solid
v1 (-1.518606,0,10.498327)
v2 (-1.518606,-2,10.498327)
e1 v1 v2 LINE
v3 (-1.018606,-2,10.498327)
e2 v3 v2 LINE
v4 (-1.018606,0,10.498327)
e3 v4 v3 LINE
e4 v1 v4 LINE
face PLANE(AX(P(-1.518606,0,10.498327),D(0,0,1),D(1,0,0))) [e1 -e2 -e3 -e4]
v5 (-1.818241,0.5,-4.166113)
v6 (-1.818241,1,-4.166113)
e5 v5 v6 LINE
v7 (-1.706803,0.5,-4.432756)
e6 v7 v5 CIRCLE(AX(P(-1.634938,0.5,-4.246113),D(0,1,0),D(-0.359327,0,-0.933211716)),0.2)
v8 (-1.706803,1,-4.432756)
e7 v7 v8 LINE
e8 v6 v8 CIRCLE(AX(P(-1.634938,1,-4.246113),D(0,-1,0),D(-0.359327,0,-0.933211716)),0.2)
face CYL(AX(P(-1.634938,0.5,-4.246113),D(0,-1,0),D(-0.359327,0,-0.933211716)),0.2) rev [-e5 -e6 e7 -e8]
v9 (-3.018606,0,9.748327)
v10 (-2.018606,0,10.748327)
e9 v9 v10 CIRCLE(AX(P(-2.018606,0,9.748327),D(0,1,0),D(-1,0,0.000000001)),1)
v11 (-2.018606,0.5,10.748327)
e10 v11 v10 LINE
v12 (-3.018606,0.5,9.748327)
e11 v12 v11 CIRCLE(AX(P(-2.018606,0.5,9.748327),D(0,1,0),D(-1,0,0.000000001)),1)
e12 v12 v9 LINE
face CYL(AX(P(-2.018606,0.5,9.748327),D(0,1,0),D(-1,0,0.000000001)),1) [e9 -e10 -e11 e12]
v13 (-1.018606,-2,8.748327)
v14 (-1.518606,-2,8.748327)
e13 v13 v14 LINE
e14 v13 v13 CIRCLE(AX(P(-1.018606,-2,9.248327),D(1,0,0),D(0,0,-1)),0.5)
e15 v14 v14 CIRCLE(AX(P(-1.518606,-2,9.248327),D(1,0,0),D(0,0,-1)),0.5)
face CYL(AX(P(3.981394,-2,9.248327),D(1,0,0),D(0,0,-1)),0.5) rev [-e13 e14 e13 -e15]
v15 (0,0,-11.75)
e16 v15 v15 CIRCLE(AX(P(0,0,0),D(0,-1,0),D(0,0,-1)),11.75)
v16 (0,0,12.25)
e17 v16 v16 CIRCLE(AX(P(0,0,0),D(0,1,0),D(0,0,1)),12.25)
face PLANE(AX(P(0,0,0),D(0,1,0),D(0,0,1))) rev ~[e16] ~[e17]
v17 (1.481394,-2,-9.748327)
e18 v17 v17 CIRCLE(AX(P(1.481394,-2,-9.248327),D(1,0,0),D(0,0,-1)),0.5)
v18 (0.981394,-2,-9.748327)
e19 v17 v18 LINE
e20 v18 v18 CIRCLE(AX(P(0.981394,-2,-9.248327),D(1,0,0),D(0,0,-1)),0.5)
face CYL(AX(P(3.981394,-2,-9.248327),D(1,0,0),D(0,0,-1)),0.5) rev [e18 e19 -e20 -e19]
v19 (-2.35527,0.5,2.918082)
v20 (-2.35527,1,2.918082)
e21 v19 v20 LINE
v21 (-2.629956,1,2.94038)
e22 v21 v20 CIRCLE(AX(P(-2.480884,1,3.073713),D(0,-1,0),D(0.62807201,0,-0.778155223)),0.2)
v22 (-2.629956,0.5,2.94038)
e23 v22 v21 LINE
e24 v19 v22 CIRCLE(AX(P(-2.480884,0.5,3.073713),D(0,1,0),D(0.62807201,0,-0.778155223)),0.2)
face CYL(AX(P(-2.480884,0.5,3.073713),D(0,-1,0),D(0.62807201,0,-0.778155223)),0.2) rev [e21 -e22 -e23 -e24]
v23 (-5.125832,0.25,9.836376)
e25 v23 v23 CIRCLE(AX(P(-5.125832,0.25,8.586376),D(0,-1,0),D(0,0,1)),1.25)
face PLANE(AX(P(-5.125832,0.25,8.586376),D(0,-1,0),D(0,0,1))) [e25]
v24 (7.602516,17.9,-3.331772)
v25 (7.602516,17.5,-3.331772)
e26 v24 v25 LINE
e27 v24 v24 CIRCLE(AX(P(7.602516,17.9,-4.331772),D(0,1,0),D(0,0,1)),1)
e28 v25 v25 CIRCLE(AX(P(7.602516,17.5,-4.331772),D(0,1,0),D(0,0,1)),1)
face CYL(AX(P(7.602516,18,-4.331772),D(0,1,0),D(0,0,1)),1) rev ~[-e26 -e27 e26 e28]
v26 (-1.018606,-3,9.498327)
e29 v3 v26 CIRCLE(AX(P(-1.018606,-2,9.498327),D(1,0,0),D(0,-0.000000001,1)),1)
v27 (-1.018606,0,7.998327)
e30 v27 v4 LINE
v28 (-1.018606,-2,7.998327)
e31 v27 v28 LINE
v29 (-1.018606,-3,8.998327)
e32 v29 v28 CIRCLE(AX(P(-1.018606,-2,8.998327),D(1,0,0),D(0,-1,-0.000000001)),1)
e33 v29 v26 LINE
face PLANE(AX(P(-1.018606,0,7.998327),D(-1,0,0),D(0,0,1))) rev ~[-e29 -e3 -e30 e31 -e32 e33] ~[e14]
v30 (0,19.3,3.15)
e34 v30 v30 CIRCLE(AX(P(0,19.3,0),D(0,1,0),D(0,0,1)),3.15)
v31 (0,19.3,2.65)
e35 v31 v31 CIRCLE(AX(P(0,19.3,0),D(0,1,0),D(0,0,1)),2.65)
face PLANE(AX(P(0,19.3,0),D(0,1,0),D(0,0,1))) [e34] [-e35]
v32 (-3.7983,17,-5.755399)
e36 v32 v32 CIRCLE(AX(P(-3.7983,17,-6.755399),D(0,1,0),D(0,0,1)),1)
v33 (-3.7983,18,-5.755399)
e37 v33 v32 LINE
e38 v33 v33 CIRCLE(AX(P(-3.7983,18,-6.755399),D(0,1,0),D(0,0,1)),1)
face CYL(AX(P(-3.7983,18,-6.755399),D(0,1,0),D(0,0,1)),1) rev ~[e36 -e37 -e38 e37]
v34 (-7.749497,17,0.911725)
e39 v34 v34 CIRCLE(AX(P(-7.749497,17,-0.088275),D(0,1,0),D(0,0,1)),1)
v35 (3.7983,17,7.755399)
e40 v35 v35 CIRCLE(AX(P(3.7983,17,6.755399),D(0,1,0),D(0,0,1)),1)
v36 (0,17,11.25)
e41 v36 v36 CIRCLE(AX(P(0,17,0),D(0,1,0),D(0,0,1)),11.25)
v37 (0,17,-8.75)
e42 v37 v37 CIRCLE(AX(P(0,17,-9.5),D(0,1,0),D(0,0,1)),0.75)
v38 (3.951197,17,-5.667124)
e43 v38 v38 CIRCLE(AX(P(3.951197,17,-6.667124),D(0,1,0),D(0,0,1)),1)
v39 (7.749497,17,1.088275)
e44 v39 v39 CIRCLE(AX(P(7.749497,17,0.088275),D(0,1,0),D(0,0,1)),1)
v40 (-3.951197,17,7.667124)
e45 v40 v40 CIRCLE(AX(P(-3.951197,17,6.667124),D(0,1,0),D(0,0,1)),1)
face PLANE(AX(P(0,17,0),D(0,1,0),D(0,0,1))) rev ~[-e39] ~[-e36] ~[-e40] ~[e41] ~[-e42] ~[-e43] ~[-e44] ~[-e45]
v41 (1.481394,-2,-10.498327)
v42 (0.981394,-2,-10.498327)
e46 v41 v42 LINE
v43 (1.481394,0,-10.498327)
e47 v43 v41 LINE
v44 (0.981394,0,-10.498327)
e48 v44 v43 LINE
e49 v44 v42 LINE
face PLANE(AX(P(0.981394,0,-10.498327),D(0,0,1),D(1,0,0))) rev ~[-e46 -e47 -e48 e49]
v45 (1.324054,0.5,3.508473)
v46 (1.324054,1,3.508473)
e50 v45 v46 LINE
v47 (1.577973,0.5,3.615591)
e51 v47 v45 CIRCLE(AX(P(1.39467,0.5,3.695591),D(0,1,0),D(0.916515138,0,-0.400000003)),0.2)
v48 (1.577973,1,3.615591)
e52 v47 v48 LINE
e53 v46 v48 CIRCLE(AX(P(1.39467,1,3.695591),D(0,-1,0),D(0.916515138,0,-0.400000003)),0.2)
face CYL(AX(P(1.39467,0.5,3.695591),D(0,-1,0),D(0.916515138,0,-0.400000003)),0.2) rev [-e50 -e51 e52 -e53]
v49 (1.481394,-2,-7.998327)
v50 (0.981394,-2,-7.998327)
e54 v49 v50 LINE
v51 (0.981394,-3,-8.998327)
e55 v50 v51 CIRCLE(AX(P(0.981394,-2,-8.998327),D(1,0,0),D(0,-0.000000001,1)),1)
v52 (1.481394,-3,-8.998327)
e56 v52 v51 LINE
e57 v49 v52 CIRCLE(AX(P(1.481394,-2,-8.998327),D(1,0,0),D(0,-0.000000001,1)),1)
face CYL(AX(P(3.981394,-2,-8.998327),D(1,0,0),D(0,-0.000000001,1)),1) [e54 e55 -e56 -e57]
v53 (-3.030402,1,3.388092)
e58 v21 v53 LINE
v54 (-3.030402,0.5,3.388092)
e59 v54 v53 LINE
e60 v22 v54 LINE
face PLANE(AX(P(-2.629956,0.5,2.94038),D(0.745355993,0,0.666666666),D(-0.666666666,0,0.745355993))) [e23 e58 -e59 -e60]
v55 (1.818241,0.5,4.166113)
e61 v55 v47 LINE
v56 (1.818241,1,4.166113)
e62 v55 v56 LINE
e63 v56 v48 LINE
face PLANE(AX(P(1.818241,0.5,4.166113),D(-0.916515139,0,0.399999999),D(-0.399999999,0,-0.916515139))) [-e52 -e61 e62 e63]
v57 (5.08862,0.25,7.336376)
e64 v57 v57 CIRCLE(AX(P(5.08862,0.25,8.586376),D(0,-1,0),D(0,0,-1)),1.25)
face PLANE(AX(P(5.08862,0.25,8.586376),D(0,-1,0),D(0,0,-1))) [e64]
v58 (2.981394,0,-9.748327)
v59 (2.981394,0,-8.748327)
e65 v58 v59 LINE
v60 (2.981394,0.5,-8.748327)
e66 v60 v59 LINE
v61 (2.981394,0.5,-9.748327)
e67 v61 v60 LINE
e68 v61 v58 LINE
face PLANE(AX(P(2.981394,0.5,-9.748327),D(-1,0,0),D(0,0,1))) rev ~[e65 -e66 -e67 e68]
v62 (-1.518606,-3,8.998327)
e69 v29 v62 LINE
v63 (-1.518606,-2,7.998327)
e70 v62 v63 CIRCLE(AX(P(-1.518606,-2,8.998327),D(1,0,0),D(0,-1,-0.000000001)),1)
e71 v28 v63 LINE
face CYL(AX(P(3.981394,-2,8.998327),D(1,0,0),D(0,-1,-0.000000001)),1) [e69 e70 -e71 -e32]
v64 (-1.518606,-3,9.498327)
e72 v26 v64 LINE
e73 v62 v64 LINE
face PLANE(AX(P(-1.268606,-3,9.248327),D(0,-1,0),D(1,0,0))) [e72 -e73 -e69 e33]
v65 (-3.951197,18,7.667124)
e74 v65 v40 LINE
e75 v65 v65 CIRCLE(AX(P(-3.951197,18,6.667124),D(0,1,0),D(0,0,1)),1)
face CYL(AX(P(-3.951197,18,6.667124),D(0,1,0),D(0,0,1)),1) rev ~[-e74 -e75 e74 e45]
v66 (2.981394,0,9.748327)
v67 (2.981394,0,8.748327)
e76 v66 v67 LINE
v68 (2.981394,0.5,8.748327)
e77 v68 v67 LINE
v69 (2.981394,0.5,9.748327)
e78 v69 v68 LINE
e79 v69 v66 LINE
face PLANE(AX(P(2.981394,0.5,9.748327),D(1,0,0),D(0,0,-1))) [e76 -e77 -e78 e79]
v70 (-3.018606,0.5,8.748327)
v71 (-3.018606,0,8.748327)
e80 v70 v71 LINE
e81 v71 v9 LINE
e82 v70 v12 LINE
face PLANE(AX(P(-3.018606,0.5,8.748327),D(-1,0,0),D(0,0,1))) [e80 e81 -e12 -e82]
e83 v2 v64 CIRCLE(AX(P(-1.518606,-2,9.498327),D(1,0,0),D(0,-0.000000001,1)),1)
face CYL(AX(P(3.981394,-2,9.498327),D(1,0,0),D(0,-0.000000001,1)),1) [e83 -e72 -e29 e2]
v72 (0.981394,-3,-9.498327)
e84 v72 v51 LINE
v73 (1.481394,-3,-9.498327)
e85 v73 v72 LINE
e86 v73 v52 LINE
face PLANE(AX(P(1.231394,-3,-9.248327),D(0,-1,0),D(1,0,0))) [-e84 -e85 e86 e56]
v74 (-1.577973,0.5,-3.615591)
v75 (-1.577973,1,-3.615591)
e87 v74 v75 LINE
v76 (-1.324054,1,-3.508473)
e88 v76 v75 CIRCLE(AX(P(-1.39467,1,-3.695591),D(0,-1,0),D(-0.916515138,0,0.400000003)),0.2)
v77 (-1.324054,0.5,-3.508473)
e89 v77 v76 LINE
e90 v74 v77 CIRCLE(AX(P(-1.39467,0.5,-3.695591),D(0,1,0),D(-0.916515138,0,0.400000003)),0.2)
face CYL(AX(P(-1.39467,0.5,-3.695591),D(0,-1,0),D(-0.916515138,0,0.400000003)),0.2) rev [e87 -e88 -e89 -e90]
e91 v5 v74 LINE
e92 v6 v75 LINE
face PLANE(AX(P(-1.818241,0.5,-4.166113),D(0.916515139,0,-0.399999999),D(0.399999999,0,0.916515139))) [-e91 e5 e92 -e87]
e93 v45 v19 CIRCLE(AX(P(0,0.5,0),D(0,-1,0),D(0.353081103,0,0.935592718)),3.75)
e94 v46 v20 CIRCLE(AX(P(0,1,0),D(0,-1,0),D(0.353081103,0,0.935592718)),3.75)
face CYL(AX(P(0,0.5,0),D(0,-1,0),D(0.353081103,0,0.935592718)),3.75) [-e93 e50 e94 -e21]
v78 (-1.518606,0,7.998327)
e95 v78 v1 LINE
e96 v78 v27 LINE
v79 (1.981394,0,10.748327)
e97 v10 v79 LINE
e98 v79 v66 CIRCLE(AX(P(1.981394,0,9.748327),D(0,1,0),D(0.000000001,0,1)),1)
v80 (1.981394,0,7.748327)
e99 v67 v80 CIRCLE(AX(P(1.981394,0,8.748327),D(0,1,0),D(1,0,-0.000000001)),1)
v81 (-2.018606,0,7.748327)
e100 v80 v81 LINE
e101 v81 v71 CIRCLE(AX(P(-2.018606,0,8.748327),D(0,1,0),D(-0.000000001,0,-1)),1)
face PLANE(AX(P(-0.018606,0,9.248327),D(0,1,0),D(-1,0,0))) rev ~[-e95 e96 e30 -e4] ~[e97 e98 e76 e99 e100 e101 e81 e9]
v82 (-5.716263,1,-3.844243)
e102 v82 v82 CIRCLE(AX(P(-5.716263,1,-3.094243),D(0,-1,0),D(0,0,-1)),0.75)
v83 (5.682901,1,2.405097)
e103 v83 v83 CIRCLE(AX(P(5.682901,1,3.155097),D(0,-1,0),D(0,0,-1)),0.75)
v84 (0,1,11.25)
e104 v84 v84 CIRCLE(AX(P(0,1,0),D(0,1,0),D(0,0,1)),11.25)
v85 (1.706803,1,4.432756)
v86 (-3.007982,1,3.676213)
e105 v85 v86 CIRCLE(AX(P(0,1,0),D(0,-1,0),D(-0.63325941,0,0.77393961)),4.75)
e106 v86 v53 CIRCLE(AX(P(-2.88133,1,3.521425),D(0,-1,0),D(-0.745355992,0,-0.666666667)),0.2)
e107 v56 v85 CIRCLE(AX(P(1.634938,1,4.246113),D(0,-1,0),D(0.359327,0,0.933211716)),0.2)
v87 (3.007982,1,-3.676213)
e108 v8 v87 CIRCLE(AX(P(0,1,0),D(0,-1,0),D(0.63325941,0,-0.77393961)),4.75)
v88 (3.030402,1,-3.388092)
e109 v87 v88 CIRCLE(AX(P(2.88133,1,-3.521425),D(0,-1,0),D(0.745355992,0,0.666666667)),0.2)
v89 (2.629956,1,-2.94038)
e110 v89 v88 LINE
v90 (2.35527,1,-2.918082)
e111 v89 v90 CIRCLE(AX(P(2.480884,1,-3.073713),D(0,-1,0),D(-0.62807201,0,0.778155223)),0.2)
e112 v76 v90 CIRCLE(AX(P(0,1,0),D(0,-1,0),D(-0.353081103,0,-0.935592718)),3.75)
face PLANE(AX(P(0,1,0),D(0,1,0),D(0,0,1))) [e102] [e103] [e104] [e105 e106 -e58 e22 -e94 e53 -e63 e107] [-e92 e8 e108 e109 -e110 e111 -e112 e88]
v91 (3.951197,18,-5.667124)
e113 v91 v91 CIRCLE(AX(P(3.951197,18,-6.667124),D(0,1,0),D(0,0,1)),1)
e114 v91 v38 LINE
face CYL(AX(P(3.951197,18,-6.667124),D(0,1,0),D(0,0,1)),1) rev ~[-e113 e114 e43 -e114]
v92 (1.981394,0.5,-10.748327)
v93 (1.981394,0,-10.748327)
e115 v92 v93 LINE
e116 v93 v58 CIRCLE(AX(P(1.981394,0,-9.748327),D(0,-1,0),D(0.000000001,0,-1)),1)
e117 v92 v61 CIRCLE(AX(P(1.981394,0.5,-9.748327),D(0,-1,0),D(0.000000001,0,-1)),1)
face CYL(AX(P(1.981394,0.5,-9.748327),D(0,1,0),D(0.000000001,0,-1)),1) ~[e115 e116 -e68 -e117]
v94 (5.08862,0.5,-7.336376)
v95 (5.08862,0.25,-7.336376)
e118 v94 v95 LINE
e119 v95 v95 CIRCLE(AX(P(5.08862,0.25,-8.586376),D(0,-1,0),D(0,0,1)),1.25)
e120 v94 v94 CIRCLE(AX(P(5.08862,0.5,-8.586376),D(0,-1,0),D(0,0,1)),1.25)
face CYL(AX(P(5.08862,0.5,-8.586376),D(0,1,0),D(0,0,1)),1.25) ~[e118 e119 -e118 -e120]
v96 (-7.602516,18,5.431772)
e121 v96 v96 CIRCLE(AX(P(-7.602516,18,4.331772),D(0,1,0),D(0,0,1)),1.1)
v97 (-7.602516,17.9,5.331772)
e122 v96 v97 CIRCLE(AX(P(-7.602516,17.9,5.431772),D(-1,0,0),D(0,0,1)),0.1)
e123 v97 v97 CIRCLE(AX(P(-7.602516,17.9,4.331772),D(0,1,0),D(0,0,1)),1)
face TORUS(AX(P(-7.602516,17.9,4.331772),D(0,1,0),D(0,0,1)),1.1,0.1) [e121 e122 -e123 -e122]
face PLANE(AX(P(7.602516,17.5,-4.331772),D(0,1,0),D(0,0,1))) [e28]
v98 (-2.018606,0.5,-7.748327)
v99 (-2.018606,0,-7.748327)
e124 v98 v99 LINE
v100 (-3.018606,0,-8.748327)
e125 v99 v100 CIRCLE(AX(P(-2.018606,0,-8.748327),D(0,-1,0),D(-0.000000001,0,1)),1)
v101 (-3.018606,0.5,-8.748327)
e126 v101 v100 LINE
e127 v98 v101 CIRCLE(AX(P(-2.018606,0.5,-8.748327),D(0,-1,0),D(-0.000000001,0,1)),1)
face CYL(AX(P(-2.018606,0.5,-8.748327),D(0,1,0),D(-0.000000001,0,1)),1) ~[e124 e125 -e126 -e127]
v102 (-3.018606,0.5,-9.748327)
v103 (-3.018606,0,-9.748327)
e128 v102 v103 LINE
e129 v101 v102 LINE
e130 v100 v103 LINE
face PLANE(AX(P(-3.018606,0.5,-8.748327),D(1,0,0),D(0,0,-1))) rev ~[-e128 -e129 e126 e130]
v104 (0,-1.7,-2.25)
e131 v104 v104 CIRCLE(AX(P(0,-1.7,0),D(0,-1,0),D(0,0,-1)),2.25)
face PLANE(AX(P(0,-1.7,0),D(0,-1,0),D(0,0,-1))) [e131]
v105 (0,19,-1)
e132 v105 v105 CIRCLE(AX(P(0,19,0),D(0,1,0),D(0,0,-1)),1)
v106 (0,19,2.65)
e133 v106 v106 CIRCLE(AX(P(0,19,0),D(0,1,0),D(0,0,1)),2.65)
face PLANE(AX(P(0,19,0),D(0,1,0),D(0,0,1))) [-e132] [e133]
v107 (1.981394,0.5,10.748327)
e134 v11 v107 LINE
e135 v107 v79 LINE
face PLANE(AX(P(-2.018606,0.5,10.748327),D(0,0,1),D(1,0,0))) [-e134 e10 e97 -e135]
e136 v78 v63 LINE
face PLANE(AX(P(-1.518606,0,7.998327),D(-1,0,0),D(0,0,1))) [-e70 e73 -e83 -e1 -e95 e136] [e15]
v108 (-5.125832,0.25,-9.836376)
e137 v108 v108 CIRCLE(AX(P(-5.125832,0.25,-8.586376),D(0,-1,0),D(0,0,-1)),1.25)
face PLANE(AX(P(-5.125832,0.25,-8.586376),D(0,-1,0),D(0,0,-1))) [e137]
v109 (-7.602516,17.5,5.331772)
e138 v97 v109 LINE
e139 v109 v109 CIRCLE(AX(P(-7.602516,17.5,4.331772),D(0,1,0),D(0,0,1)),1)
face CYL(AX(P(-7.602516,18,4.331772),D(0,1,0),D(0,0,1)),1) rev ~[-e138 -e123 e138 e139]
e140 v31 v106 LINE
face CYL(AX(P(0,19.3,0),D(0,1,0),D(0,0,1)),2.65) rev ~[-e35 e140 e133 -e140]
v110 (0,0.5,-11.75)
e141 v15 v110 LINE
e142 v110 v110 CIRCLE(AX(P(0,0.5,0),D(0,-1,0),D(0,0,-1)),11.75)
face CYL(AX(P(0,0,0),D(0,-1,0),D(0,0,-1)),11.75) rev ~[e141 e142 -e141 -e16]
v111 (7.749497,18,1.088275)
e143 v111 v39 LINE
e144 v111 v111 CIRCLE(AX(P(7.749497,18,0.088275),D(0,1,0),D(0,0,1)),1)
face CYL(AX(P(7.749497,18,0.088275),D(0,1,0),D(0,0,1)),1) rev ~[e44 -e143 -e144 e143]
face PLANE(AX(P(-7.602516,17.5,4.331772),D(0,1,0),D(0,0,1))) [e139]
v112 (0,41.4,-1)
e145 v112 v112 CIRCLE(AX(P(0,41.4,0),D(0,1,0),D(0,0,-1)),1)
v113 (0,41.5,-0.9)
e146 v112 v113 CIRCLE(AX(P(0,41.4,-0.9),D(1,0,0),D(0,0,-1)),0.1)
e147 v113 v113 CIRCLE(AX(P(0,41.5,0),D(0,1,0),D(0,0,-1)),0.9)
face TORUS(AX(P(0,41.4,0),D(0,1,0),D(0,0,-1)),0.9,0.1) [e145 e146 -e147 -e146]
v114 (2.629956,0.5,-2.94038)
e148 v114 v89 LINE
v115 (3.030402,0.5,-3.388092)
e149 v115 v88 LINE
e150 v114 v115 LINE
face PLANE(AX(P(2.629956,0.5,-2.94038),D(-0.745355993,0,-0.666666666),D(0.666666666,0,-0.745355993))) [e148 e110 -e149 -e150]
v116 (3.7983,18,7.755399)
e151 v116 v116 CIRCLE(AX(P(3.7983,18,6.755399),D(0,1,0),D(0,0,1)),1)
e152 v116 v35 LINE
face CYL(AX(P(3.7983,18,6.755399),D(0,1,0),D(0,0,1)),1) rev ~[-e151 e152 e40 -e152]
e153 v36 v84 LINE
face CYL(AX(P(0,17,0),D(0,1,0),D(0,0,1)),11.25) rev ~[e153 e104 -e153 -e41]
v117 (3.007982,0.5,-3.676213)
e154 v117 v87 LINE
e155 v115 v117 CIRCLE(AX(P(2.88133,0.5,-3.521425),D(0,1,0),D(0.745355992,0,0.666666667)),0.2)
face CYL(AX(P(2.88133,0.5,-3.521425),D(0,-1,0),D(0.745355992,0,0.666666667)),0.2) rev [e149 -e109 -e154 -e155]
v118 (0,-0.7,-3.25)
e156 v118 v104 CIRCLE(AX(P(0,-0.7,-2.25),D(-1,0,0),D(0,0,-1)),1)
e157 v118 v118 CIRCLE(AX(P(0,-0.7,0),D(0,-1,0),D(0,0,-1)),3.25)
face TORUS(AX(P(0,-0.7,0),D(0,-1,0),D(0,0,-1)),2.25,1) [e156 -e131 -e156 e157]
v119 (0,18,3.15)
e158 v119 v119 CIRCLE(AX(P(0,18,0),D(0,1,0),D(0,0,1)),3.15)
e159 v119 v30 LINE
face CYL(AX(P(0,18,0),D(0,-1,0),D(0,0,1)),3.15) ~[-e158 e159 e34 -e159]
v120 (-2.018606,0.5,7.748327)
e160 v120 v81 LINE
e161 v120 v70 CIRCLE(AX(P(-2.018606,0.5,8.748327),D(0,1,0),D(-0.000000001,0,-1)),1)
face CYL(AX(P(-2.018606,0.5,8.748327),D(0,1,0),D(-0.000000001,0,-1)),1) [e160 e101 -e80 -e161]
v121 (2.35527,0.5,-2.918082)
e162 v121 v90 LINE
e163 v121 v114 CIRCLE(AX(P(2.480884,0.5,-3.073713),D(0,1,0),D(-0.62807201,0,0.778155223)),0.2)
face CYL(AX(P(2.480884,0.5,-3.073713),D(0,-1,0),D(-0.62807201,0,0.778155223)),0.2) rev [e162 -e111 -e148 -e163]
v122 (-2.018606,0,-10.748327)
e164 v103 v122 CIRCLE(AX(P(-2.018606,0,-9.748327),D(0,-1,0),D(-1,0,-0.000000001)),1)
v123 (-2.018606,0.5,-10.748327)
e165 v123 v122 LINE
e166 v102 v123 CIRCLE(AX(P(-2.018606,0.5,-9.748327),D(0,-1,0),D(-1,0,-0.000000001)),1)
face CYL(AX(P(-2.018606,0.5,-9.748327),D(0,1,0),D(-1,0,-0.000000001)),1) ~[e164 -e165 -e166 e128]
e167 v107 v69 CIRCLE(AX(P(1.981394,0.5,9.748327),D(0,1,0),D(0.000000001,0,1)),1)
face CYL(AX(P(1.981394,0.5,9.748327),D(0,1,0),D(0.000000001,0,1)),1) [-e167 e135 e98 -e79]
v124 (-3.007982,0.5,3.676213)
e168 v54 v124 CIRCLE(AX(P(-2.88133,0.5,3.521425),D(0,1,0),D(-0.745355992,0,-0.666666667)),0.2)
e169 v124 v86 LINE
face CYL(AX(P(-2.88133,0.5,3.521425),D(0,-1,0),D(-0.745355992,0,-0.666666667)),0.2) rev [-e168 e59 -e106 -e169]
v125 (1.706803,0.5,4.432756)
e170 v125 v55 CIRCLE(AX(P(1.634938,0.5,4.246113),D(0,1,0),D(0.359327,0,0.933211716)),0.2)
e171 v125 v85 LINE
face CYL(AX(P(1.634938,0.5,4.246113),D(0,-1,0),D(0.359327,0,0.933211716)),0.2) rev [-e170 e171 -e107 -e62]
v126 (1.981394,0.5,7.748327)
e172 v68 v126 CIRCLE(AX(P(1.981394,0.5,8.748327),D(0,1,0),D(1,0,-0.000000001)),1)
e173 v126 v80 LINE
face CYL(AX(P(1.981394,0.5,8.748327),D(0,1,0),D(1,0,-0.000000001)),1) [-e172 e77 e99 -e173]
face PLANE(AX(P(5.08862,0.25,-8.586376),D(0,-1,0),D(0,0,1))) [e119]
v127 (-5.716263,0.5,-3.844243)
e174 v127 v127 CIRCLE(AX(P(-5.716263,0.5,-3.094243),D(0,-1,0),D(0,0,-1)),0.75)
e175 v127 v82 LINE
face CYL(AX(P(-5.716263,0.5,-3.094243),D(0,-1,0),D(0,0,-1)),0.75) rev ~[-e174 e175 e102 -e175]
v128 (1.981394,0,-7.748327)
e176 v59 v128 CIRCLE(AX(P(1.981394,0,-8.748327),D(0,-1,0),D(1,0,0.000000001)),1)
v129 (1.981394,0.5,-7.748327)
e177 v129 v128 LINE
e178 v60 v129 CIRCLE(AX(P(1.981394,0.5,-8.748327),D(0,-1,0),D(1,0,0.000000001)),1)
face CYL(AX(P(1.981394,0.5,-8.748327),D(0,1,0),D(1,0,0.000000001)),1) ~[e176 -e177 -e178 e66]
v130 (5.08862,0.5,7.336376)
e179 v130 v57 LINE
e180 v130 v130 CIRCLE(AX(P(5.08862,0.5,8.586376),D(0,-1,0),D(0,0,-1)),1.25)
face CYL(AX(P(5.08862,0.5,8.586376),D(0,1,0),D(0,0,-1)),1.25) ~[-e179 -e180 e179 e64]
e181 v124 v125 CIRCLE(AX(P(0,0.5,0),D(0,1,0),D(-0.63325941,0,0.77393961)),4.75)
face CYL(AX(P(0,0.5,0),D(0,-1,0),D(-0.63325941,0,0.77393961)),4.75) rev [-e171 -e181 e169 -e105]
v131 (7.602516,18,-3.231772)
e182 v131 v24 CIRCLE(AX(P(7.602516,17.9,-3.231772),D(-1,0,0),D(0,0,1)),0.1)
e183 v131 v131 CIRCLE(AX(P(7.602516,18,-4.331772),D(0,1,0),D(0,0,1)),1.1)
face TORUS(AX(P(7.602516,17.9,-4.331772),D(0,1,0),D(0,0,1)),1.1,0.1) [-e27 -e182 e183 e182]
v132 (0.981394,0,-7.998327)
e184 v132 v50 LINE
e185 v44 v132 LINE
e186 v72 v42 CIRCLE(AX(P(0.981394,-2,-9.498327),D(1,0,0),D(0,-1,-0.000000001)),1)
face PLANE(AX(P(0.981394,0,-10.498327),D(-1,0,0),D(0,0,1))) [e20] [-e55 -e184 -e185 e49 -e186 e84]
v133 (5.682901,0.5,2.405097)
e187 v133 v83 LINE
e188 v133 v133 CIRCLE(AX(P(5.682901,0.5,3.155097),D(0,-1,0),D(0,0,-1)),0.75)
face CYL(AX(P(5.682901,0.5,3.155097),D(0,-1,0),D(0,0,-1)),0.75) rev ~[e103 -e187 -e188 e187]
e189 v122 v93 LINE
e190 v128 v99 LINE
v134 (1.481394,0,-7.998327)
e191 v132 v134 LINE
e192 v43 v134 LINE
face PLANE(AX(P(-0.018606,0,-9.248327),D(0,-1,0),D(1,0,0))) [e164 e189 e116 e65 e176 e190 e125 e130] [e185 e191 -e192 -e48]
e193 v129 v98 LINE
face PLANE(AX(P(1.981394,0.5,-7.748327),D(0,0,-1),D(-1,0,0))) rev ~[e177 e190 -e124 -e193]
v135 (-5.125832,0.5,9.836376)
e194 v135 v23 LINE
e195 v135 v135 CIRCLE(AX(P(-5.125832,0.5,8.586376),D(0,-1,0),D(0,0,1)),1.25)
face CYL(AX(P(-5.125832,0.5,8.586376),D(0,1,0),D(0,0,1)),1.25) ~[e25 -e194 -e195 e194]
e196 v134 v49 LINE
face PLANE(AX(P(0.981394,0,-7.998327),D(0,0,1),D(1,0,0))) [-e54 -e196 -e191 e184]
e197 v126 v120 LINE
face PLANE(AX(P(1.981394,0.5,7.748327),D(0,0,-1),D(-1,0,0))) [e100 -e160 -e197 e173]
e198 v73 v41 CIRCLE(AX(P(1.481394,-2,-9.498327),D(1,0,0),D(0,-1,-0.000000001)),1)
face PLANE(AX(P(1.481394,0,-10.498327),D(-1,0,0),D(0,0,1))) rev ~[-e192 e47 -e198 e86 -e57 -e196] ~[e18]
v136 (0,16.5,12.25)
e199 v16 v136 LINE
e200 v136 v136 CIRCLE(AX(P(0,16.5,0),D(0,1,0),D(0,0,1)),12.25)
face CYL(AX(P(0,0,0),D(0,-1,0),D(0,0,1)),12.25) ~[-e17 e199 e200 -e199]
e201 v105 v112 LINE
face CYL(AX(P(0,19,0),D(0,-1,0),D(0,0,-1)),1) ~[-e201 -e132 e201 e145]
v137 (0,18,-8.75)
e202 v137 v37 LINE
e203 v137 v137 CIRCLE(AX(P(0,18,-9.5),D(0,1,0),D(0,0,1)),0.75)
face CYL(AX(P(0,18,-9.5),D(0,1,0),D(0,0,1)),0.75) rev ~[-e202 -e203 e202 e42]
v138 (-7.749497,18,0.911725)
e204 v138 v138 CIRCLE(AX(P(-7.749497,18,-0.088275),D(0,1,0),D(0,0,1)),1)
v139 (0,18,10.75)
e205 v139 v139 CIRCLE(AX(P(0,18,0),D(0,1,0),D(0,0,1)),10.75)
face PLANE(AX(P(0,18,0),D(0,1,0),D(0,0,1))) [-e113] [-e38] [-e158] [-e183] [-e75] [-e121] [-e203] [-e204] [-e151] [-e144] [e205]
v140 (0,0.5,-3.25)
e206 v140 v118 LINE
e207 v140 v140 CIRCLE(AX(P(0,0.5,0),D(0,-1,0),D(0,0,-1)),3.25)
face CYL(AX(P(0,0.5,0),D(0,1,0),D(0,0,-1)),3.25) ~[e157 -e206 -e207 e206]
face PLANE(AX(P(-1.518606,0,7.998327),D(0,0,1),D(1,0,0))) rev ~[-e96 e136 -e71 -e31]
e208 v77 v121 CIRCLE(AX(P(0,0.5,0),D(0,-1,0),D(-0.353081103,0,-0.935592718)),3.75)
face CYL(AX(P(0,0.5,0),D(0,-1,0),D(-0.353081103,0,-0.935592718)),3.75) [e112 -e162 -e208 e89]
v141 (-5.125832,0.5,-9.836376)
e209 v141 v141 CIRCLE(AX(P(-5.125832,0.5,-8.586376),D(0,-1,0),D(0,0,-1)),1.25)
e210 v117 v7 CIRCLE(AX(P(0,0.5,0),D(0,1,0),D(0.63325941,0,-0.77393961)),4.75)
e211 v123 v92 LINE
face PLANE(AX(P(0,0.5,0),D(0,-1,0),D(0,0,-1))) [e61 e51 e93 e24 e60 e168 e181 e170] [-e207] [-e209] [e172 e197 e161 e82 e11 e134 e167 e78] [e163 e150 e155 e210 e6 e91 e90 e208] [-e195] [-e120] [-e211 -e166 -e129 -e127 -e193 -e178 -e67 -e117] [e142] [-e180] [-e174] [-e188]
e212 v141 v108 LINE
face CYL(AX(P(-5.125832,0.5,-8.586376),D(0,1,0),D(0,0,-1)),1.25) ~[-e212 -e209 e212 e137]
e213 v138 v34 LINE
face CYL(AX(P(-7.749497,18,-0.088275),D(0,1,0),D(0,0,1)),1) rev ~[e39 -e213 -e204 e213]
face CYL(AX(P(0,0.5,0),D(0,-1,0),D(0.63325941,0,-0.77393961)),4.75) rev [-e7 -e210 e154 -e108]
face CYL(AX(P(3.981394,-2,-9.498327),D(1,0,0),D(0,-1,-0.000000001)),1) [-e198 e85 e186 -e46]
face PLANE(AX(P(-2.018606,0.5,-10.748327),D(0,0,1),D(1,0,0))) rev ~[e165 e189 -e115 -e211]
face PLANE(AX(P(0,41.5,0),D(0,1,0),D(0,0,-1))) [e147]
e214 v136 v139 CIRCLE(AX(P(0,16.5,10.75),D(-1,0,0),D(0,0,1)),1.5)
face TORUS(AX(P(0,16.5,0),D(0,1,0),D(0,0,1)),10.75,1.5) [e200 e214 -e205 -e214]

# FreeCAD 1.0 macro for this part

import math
import FreeCAD as App
import Part
import Sketcher

V = App.Vector
Q = App.Units.Quantity


def edges_at(feature, points):
    """Names of the edges that pass closest to the given points."""
    edges = feature.Shape.Edges
    near = lambda p: min(range(len(edges)), key=lambda i: edges[i].distToShape(Part.Vertex(*p))[0])
    return sorted({f"Edge{near(p) + 1}" for p in points})


def add_polygon(sketch, points):
    """Adds a closed chain of lines whose ends are joined by coincident constraints."""
    first, n = sketch.GeometryCount, len(points)
    for a, b in zip(points, points[1:] + points[:1]):
        sketch.addGeometry(Part.LineSegment(App.Vector(*a, 0), App.Vector(*b, 0)), False)
    for i in range(n):
        sketch.addConstraint(Sketcher.Constraint("Coincident", first + i, 2, first + (i + 1) % n, 1))

doc = App.newDocument("Part")
params = doc.addObject("Spreadsheet::Sheet", "Params")
for row, (alias, value) in enumerate([
    ("sketch1_diameter", "24.5 mm"),
    ("pad1_length", "18 mm"),
    ("sketch2_diameter", "6.3 mm"),
    ("pad2_length", "1.3 mm"),
    ("sketch3_diameter", "5.3 mm"),
    ("pocket1_length", "0.3 mm"),
    ("sketch4_diameter", "2 mm"),
    ("pad3_length", "22.5 mm"),
    ("sketch5_diameter", "23.5 mm"),
    ("pocket2_length", "0.5 mm"),
    ("sketch6_diameter", "6.5 mm"),
    ("pad4_length", "2.2 mm"),
    ("sketch7_radius", "1 mm"),
    ("sketch7_diameter", "2.5 mm"),
    ("sketch7_width", "4 mm"),
    ("sketch7_height", "1 mm"),
    ("pad5_length", "0.5 mm"),
    ("sketch8_diameter", "2.5 mm"),
    ("pocket3_length", "0.25 mm"),
    ("sketch9_diameter", "1.5 mm"),
    ("sketch9_radius", "0.2 mm"),
    ("sketch9_radius2", "3.75 mm"),
    ("sketch9_radius3", "4.75 mm"),
    ("sketch9_height", "0.08 mm"),
    ("pocket4_length", "5 mm"),
    ("sketch10_diameter", "22.5 mm"),
    ("pocket5_length", "16 mm"),
    ("sketch11_width", "0.5 mm"),
    ("sketch11_height", "2.5 mm"),
    ("pad6_length", "3 mm"),
    ("sketch12_diameter", "1 mm"),
    ("sketch12_radius", "1 mm"),
    ("fillet_radius", "1.5 mm"),
    ("fillet2_radius", "1 mm"),
    ("sketch13_diameter", "2 mm"),
    ("sketch13_diameter2", "1.5 mm"),
    ("pocket7_length", "3 mm"),
    ("sketch14_diameter", "2 mm"),
    ("pocket8_length", "0.5 mm"),
    ("fillet3_radius", "0.1 mm"),
    ("fillet4_radius", "0.1 mm"),
], start=1):
    params.set(f"A{row}", alias)
    params.set(f"B{row}", "=" + value)
    params.setAlias(f"B{row}", alias)

body = doc.addObject("PartDesign::Body", "Body")

sketch1 = body.newObject("Sketcher::SketchObject", "Sketch")
sketch1.AttachmentSupport = (doc.getObject("XZ_Plane"), [""])
sketch1.MapMode = "FlatFace"
sketch1.addGeometry(Part.Circle(V(0, 0, 0), V(0, 0, 1), 12.25), False)
sketch1.addConstraint([
    Sketcher.Constraint("Coincident", 0, 3, -1, 1),
    Sketcher.Constraint("Diameter", 0, Q("24.5 mm")),
])
sketch1.setExpression("Constraints[1]", "Params.sketch1_diameter")
pad1 = body.newObject("PartDesign::Pad", "Pad")
pad1.Profile = sketch1
pad1.setExpression("Length", "Params.pad1_length")
pad1.Reversed = True

sketch2 = body.newObject("Sketcher::SketchObject", "Sketch001")
sketch2.AttachmentSupport = (doc.getObject("XZ_Plane"), [""])
sketch2.MapMode = "FlatFace"
sketch2.AttachmentOffset = App.Placement(V(0, 0, -18), App.Rotation())
sketch2.addGeometry(Part.Circle(V(0, 0, 0), V(0, 0, 1), 3.15), False)
sketch2.addConstraint([
    Sketcher.Constraint("Coincident", 0, 3, -1, 1),
    Sketcher.Constraint("Diameter", 0, Q("6.3 mm")),
])
sketch2.setExpression("Constraints[1]", "Params.sketch2_diameter")
pad2 = body.newObject("PartDesign::Pad", "Pad001")
pad2.Profile = sketch2
pad2.setExpression("Length", "Params.pad2_length")
pad2.Reversed = True

sketch3 = body.newObject("Sketcher::SketchObject", "Sketch002")
sketch3.AttachmentSupport = (doc.getObject("XZ_Plane"), [""])
sketch3.MapMode = "FlatFace"
sketch3.AttachmentOffset = App.Placement(V(0, 0, -19.3), App.Rotation())
sketch3.addGeometry(Part.Circle(V(0, 0, 0), V(0, 0, 1), 2.65), False)
sketch3.addConstraint([
    Sketcher.Constraint("Coincident", 0, 3, -1, 1),
    Sketcher.Constraint("Diameter", 0, Q("5.3 mm")),
])
sketch3.setExpression("Constraints[1]", "Params.sketch3_diameter")
pocket1 = body.newObject("PartDesign::Pocket", "Pocket")
pocket1.Profile = sketch3
pocket1.setExpression("Length", "Params.pocket1_length")
pocket1.Reversed = True

sketch4 = body.newObject("Sketcher::SketchObject", "Sketch003")
sketch4.AttachmentSupport = (doc.getObject("XZ_Plane"), [""])
sketch4.MapMode = "FlatFace"
sketch4.AttachmentOffset = App.Placement(V(0, 0, -19), App.Rotation())
sketch4.addGeometry(Part.Circle(V(0, 0, 0), V(0, 0, 1), 1), False)
sketch4.addConstraint([
    Sketcher.Constraint("Coincident", 0, 3, -1, 1),
    Sketcher.Constraint("Diameter", 0, Q("2 mm")),
])
sketch4.setExpression("Constraints[1]", "Params.sketch4_diameter")
pad3 = body.newObject("PartDesign::Pad", "Pad002")
pad3.Profile = sketch4
pad3.setExpression("Length", "Params.pad3_length")
pad3.Reversed = True

sketch5 = body.newObject("Sketcher::SketchObject", "Sketch004")
sketch5.AttachmentSupport = (doc.getObject("XZ_Plane"), [""])
sketch5.MapMode = "FlatFace"
sketch5.addGeometry(Part.Circle(V(0, 0, 0), V(0, 0, 1), 11.75), False)
sketch5.addConstraint([
    Sketcher.Constraint("Coincident", 0, 3, -1, 1),
    Sketcher.Constraint("Diameter", 0, Q("23.5 mm")),
])
sketch5.setExpression("Constraints[1]", "Params.sketch5_diameter")
pocket2 = body.newObject("PartDesign::Pocket", "Pocket001")
pocket2.Profile = sketch5
pocket2.setExpression("Length", "Params.pocket2_length")

sketch6 = body.newObject("Sketcher::SketchObject", "Sketch005")
sketch6.AttachmentSupport = (doc.getObject("XZ_Plane"), [""])
sketch6.MapMode = "FlatFace"
sketch6.AttachmentOffset = App.Placement(V(0, 0, -0.5), App.Rotation())
sketch6.addGeometry(Part.Circle(V(0, 0, 0), V(0, 0, 1), 3.25), False)
sketch6.addConstraint([
    Sketcher.Constraint("Coincident", 0, 3, -1, 1),
    Sketcher.Constraint("Diameter", 0, Q("6.5 mm")),
])
sketch6.setExpression("Constraints[1]", "Params.sketch6_diameter")
pad4 = body.newObject("PartDesign::Pad", "Pad003")
pad4.Profile = sketch6
pad4.setExpression("Length", "Params.pad4_length")

sketch7 = body.newObject("Sketcher::SketchObject", "Sketch006")
sketch7.AttachmentSupport = (doc.getObject("XZ_Plane"), [""])
sketch7.MapMode = "FlatFace"
sketch7.AttachmentOffset = App.Placement(V(0, 0, -0.5), App.Rotation())
sketch7.addGeometry([
    Part.Circle(V(-5.125832, -8.586376, 0), V(0, 0, 1), 1.25),
    Part.Circle(V(5.08862, -8.586376, 0), V(0, 0, 1), 1.25),
    Part.Circle(V(5.08862, 8.586376, 0), V(0, 0, 1), 1.25),
    Part.Circle(V(-5.125832, 8.586376, 0), V(0, 0, 1), 1.25),
    Part.LineSegment(V(-2.018606, -10.748327, 0), V(1.981394, -10.748327, 0)),
    Part.ArcOfCircle(Part.Circle(V(1.981394, -9.748327, 0), V(0, 0, 1), 1), math.radians(-90), math.radians(0)),
    Part.LineSegment(V(2.981394, -9.748327, 0), V(2.981394, -8.748327, 0)),
    Part.ArcOfCircle(Part.Circle(V(1.981394, -8.748327, 0), V(0, 0, 1), 1), math.radians(0), math.radians(90)),
    Part.LineSegment(V(1.981394, -7.748327, 0), V(-2.018606, -7.748327, 0)),
    Part.ArcOfCircle(Part.Circle(V(-2.018606, -8.748327, 0), V(0, 0, 1), 1), math.radians(90), math.radians(180)),
    Part.LineSegment(V(-3.018606, -8.748327, 0), V(-3.018606, -9.748327, 0)),
    Part.ArcOfCircle(Part.Circle(V(-2.018606, -9.748327, 0), V(0, 0, 1), 1), math.radians(-180), math.radians(-90)),
    Part.LineSegment(V(2.981394, 8.748327, 0), V(2.981394, 9.748327, 0)),
    Part.ArcOfCircle(Part.Circle(V(1.981394, 9.748327, 0), V(0, 0, 1), 1), math.radians(0), math.radians(90)),
    Part.LineSegment(V(1.981394, 10.748327, 0), V(-2.018606, 10.748327, 0)),
    Part.ArcOfCircle(Part.Circle(V(-2.018606, 9.748327, 0), V(0, 0, 1), 1), math.radians(90), math.radians(180)),
    Part.LineSegment(V(-3.018606, 9.748327, 0), V(-3.018606, 8.748327, 0)),
    Part.ArcOfCircle(Part.Circle(V(-2.018606, 8.748327, 0), V(0, 0, 1), 1), math.radians(-180), math.radians(-90)),
    Part.LineSegment(V(-2.018606, 7.748327, 0), V(1.981394, 7.748327, 0)),
    Part.ArcOfCircle(Part.Circle(V(1.981394, 8.748327, 0), V(0, 0, 1), 1), math.radians(-90), math.radians(0)),
], False)
sketch7.addConstraint([
    Sketcher.Constraint("Tangent", 4, 2, 5, 1),
    Sketcher.Constraint("Tangent", 5, 2, 6, 1),
    Sketcher.Constraint("Tangent", 6, 2, 7, 1),
    Sketcher.Constraint("Tangent", 7, 2, 8, 1),
    Sketcher.Constraint("Tangent", 8, 2, 9, 1),
    Sketcher.Constraint("Tangent", 9, 2, 10, 1),
    Sketcher.Constraint("Tangent", 10, 2, 11, 1),
    Sketcher.Constraint("Tangent", 11, 2, 4, 1),
    Sketcher.Constraint("Tangent", 12, 2, 13, 1),
    Sketcher.Constraint("Tangent", 13, 2, 14, 1),
    Sketcher.Constraint("Tangent", 14, 2, 15, 1),
    Sketcher.Constraint("Tangent", 15, 2, 16, 1),
    Sketcher.Constraint("Tangent", 16, 2, 17, 1),
    Sketcher.Constraint("Tangent", 17, 2, 18, 1),
    Sketcher.Constraint("Tangent", 18, 2, 19, 1),
    Sketcher.Constraint("Tangent", 19, 2, 12, 1),
    Sketcher.Constraint("Horizontal", 4),
    Sketcher.Constraint("Vertical", 6),
    Sketcher.Constraint("Horizontal", 8),
    Sketcher.Constraint("Vertical", 10),
    Sketcher.Constraint("Vertical", 12),
    Sketcher.Constraint("Horizontal", 14),
    Sketcher.Constraint("Vertical", 16),
    Sketcher.Constraint("Horizontal", 18),
    Sketcher.Constraint("Equal", 0, 1),
    Sketcher.Constraint("Equal", 1, 2),
    Sketcher.Constraint("Equal", 2, 3),
    Sketcher.Constraint("Equal", 5, 7),
    Sketcher.Constraint("Equal", 7, 9),
    Sketcher.Constraint("Equal", 9, 11),
    Sketcher.Constraint("Equal", 11, 13),
    Sketcher.Constraint("Equal", 13, 15),
    Sketcher.Constraint("Equal", 15, 17),
    Sketcher.Constraint("Equal", 17, 19),
    Sketcher.Constraint("Symmetric", 1, 3, 2, 3, -1),
    Sketcher.Constraint("Symmetric", 0, 3, 3, 3, -1),
    Sketcher.Constraint("Symmetric", 5, 3, 13, 3, -1),
    Sketcher.Constraint("Symmetric", 9, 3, 17, 3, -1),
    Sketcher.Constraint("Horizontal", 0, 3, 1, 3),
    Sketcher.Constraint("Radius", 5, Q("1 mm")),
    Sketcher.Constraint("Diameter", 0, Q("2.5 mm")),
    Sketcher.Constraint("DistanceX", 4, 1, 4, 2, Q("4 mm")),
    Sketcher.Constraint("DistanceY", 6, 1, 6, 2, Q("1 mm")),
    Sketcher.Constraint("DistanceX", 0, 3, -1, 1, Q("5.125832 mm")),
    Sketcher.Constraint("DistanceX", -1, 1, 1, 3, Q("5.08862 mm")),
    Sketcher.Constraint("DistanceY", 1, 3, 2, 3, Q("17.172752 mm")),
    Sketcher.Constraint("DistanceY", 5, 3, 1, 3, Q("1.161951 mm")),
    Sketcher.Constraint("DistanceX", -1, 1, 5, 3, Q("1.981394 mm")),
])
sketch7.setExpression("Constraints[39]", "Params.sketch7_radius")
sketch7.setExpression("Constraints[40]", "Params.sketch7_diameter")
sketch7.setExpression("Constraints[41]", "Params.sketch7_width")
sketch7.setExpression("Constraints[42]", "Params.sketch7_height")
pad5 = body.newObject("PartDesign::Pad", "Pad004")
pad5.Profile = sketch7
pad5.setExpression("Length", "Params.pad5_length")

sketch8 = body.newObject("Sketcher::SketchObject", "Sketch007")
sketch8.AttachmentSupport = (doc.getObject("XZ_Plane"), [""])
sketch8.MapMode = "FlatFace"
sketch8.AttachmentOffset = App.Placement(V(0, 0, -0.25), App.Rotation())
sketch8.addGeometry([
    Part.Circle(V(-5.125832, -8.586376, 0), V(0, 0, 1), 1.25),
    Part.Circle(V(5.08862, -8.586376, 0), V(0, 0, 1), 1.25),
    Part.Circle(V(5.08862, 8.586376, 0), V(0, 0, 1), 1.25),
    Part.Circle(V(-5.125832, 8.586376, 0), V(0, 0, 1), 1.25),
], False)
sketch8.addConstraint([
    Sketcher.Constraint("Equal", 0, 1),
    Sketcher.Constraint("Equal", 1, 2),
    Sketcher.Constraint("Equal", 2, 3),
    Sketcher.Constraint("Symmetric", 1, 3, 2, 3, -1),
    Sketcher.Constraint("Symmetric", 0, 3, 3, 3, -1),
    Sketcher.Constraint("Horizontal", 0, 3, 1, 3),
    Sketcher.Constraint("Diameter", 0, Q("2.5 mm")),
    Sketcher.Constraint("DistanceX", 0, 3, -1, 1, Q("5.125832 mm")),
    Sketcher.Constraint("DistanceX", -1, 1, 1, 3, Q("5.08862 mm")),
    Sketcher.Constraint("DistanceY", 1, 3, 2, 3, Q("17.172752 mm")),
])
sketch8.setExpression("Constraints[6]", "Params.sketch8_diameter")
pocket3 = body.newObject("PartDesign::Pocket", "Pocket002")
pocket3.Profile = sketch8
pocket3.setExpression("Length", "Params.pocket3_length")
pocket3.Reversed = True

sketch9 = body.newObject("Sketcher::SketchObject", "Sketch008")
sketch9.AttachmentSupport = (doc.getObject("XZ_Plane"), [""])
sketch9.MapMode = "FlatFace"
sketch9.AttachmentOffset = App.Placement(V(0, 0, -0.5), App.Rotation())
sketch9.addGeometry([
    Part.Circle(V(-5.716263, -3.094243, 0), V(0, 0, 1), 0.75),
    Part.Circle(V(5.682901, 3.155097, 0), V(0, 0, 1), 0.75),
    Part.LineSegment(V(-3.030402, 3.388092, 0), V(-2.629956, 2.94038, 0)),
    Part.ArcOfCircle(Part.Circle(V(-2.480884, 3.073713, 0), V(0, 0, 1), 0.2), math.radians(-138.189685), math.radians(-51.091978)),
    Part.ArcOfCircle(Part.Circle(V(0, 0, 0), V(0, 0, 1), 3.75), math.radians(69.324115), math.radians(128.908022)),
    Part.ArcOfCircle(Part.Circle(V(1.39467, 3.695591, 0), V(0, 0, 1), 0.2), math.radians(-110.675885), math.radians(-23.578179)),
    Part.LineSegment(V(1.577973, 3.615591, 0), V(1.818241, 4.166113, 0)),
    Part.ArcOfCircle(Part.Circle(V(1.634938, 4.246113, 0), V(0, 0, 1), 0.2), math.radians(-23.578179), math.radians(68.941129)),
    Part.ArcOfCircle(Part.Circle(V(0, 0, 0), V(0, 0, 1), 4.75), math.radians(68.941129), math.radians(129.291007)),
    Part.ArcOfCircle(Part.Circle(V(-2.88133, 3.521425, 0), V(0, 0, 1), 0.2), math.radians(129.291007), math.radians(221.810315)),
    Part.LineSegment(V(3.030402, -3.388092, 0), V(2.629956, -2.94038, 0)),
    Part.ArcOfCircle(Part.Circle(V(2.480884, -3.073713, 0), V(0, 0, 1), 0.2), math.radians(41.810315), math.radians(128.908022)),
    Part.ArcOfCircle(Part.Circle(V(0, 0, 0), V(0, 0, 1), 3.75), math.radians(-110.675885), math.radians(-51.091978)),
    Part.ArcOfCircle(Part.Circle(V(-1.39467, -3.695591, 0), V(0, 0, 1), 0.2), math.radians(69.324115), math.radians(156.421821)),
    Part.LineSegment(V(-1.577973, -3.615591, 0), V(-1.818241, -4.166113, 0)),
    Part.ArcOfCircle(Part.Circle(V(-1.634938, -4.246113, 0), V(0, 0, 1), 0.2), math.radians(156.421821), math.radians(248.941129)),
    Part.ArcOfCircle(Part.Circle(V(0, 0, 0), V(0, 0, 1), 4.75), math.radians(-111.058871), math.radians(-50.708993)),
    Part.ArcOfCircle(Part.Circle(V(2.88133, -3.521425, 0), V(0, 0, 1), 0.2), math.radians(-50.708993), math.radians(41.810315)),
], False)
sketch9.addConstraint([
    Sketcher.Constraint("Tangent", 2, 2, 3, 1),
    Sketcher.Constraint("Tangent", 3, 2, 4, 2),
    Sketcher.Constraint("Tangent", 4, 1, 5, 1),
    Sketcher.Constraint("Tangent", 5, 2, 6, 1),
    Sketcher.Constraint("Tangent", 6, 2, 7, 1),
    Sketcher.Constraint("Tangent", 7, 2, 8, 1),
    Sketcher.Constraint("Tangent", 8, 2, 9, 1),
    Sketcher.Constraint("Tangent", 9, 2, 2, 1),
    Sketcher.Constraint("Tangent", 10, 2, 11, 1),
    Sketcher.Constraint("Tangent", 11, 2, 12, 2),
    Sketcher.Constraint("Tangent", 12, 1, 13, 1),
    Sketcher.Constraint("Tangent", 13, 2, 14, 1),
    Sketcher.Constraint("Tangent", 14, 2, 15, 1),
    Sketcher.Constraint("Tangent", 15, 2, 16, 1),
    Sketcher.Constraint("Tangent", 16, 2, 17, 1),
    Sketcher.Constraint("Tangent", 17, 2, 10, 1),
    Sketcher.Constraint("Coincident", 4, 3, -1, 1),
    Sketcher.Constraint("Coincident", 8, 3, -1, 1),
    Sketcher.Constraint("Coincident", 12, 3, -1, 1),
    Sketcher.Constraint("Coincident", 16, 3, -1, 1),
    Sketcher.Constraint("Equal", 0, 1),
    Sketcher.Constraint("Equal", 3, 5),
    Sketcher.Constraint("Equal", 5, 7),
    Sketcher.Constraint("Equal", 7, 9),
    Sketcher.Constraint("Equal", 9, 11),
    Sketcher.Constraint("Equal", 4, 12),
    Sketcher.Constraint("Equal", 11, 13),
    Sketcher.Constraint("Equal", 13, 15),
    Sketcher.Constraint("Equal", 8, 16),
    Sketcher.Constraint("Equal", 15, 17),
    Sketcher.Constraint("Symmetric", 2, 2, 10, 2, -1, 1),
    Sketcher.Constraint("Symmetric", 5, 2, 13, 2, -1, 1),
    Sketcher.Constraint("Equal", 2, 6),
    Sketcher.Constraint("Diameter", 0, Q("1.5 mm")),
    Sketcher.Constraint("Radius", 3, Q("0.2 mm")),
    Sketcher.Constraint("Radius", 4, Q("3.75 mm")),
    Sketcher.Constraint("Radius", 8, Q("4.75 mm")),
    Sketcher.Constraint("DistanceY", 5, 2, 5, 3, Q("0.08 mm")),
    Sketcher.Constraint("DistanceX", 9, 3, 5, 3, Q("4.276001 mm")),
    Sketcher.Constraint("DistanceX", -1, 1, 1, 3, Q("5.682901 mm")),
    Sketcher.Constraint("DistanceX", 9, 2, -1, 1, Q("3.030402 mm")),
    Sketcher.Constraint("DistanceX", 0, 3, 7, 3, Q("7.351201 mm")),
    Sketcher.Constraint("DistanceY", 0, 3, 1, 3, Q("6.24934 mm")),
    Sketcher.Constraint("DistanceY", 11, 3, 1, 3, Q("6.22881 mm")),
])
sketch9.setExpression("Constraints[33]", "Params.sketch9_diameter")
sketch9.setExpression("Constraints[34]", "Params.sketch9_radius")
sketch9.setExpression("Constraints[35]", "Params.sketch9_radius2")
sketch9.setExpression("Constraints[36]", "Params.sketch9_radius3")
sketch9.setExpression("Constraints[37]", "Params.sketch9_height")
pocket4 = body.newObject("PartDesign::Pocket", "Pocket003")
pocket4.Profile = sketch9
pocket4.setExpression("Length", "Params.pocket4_length")

sketch10 = body.newObject("Sketcher::SketchObject", "Sketch009")
sketch10.AttachmentSupport = (doc.getObject("XZ_Plane"), [""])
sketch10.MapMode = "FlatFace"
sketch10.AttachmentOffset = App.Placement(V(0, 0, -17), App.Rotation())
sketch10.addGeometry(Part.Circle(V(0, 0, 0), V(0, 0, 1), 11.25), False)
sketch10.addConstraint([
    Sketcher.Constraint("Coincident", 0, 3, -1, 1),
    Sketcher.Constraint("Diameter", 0, Q("22.5 mm")),
])
sketch10.setExpression("Constraints[1]", "Params.sketch10_diameter")
pocket5 = body.newObject("PartDesign::Pocket", "Pocket004")
pocket5.Profile = sketch10
pocket5.setExpression("Length", "Params.pocket5_length")
pocket5.Reversed = True

sketch11 = body.newObject("Sketcher::SketchObject", "Sketch010")
sketch11.AttachmentSupport = (doc.getObject("XZ_Plane"), [""])
sketch11.MapMode = "FlatFace"
add_polygon(sketch11, [(0.981394, -7.998327), (0.981394, -10.498327), (1.481394, -10.498327), (1.481394, -7.998327)])
add_polygon(sketch11, [(-1.518606, 10.498327), (-1.518606, 7.998327), (-1.018606, 7.998327), (-1.018606, 10.498327)])
sketch11.addConstraint([
    Sketcher.Constraint("Vertical", 0),
    Sketcher.Constraint("Horizontal", 1),
    Sketcher.Constraint("Vertical", 2),
    Sketcher.Constraint("Horizontal", 3),
    Sketcher.Constraint("Vertical", 4),
    Sketcher.Constraint("Horizontal", 5),
    Sketcher.Constraint("Vertical", 6),
    Sketcher.Constraint("Horizontal", 7),
    Sketcher.Constraint("Equal", 3, 5),
    Sketcher.Constraint("Equal", 2, 4),
    Sketcher.Constraint("DistanceX", 1, 1, 1, 2, Q("0.5 mm")),
    Sketcher.Constraint("DistanceY", 0, 2, 0, 1, Q("2.5 mm")),
    Sketcher.Constraint("DistanceX", 4, 2, 2, 2, Q("3 mm")),
    Sketcher.Constraint("DistanceX", -1, 1, 0, 2, Q("0.981394 mm")),
    Sketcher.Constraint("DistanceY", 0, 2, -1, 1, Q("10.498327 mm")),
    Sketcher.Constraint("DistanceY", -1, 1, 4, 2, Q("7.998327 mm")),
])
sketch11.setExpression("Constraints[18]", "Params.sketch11_width")
sketch11.setExpression("Constraints[19]", "Params.sketch11_height")
pad6 = body.newObject("PartDesign::Pad", "Pad005")
pad6.Profile = sketch11
pad6.setExpression("Length", "Params.pad6_length")

sketch12 = body.newObject("Sketcher::SketchObject", "Sketch011")
sketch12.AttachmentSupport = (doc.getObject("YZ_Plane"), [""])
sketch12.MapMode = "FlatFace"
sketch12.AttachmentOffset = App.Placement(V(0, 0, 0.981394), App.Rotation())
sketch12.addGeometry([
    Part.LineSegment(V(-3, -10.498327, 0), V(-3, -9.498327, 0)),
    Part.ArcOfCircle(Part.Circle(V(-2, -9.498327, 0), V(0, 0, 1), 1), math.radians(-180), math.radians(-90)),
    Part.LineSegment(V(-2, -10.498327, 0), V(-3, -10.498327, 0)),
    Part.ArcOfCircle(Part.Circle(V(-2, -8.998327, 0), V(0, 0, 1), 1), math.radians(90), math.radians(180)),
    Part.LineSegment(V(-3, -8.998327, 0), V(-3, -7.998327, 0)),
    Part.LineSegment(V(-3, -7.998327, 0), V(-2, -7.998327, 0)),
    Part.Circle(V(-2, -9.248327, 0), V(0, 0, 1), 0.5),
    Part.LineSegment(V(-3, 7.998327, 0), V(-3, 8.998327, 0)),
    Part.ArcOfCircle(Part.Circle(V(-2, 8.998327, 0), V(0, 0, 1), 1), math.radians(-180), math.radians(-90)),
    Part.LineSegment(V(-2, 7.998327, 0), V(-3, 7.998327, 0)),
    Part.ArcOfCircle(Part.Circle(V(-2, 9.498327, 0), V(0, 0, 1), 1), math.radians(90), math.radians(180)),
    Part.LineSegment(V(-3, 9.498327, 0), V(-3, 10.498327, 0)),
    Part.LineSegment(V(-3, 10.498327, 0), V(-2, 10.498327, 0)),
    Part.Circle(V(-2, 9.248327, 0), V(0, 0, 1), 0.5),
], False)
sketch12.addConstraint([
    Sketcher.Constraint("Tangent", 0, 2, 1, 1),
    Sketcher.Constraint("Tangent", 1, 2, 2, 1),
    Sketcher.Constraint("Coincident", 2, 2, 0, 1),
    Sketcher.Constraint("Tangent", 3, 2, 4, 1),
    Sketcher.Constraint("Coincident", 4, 2, 5, 1),
    Sketcher.Constraint("Tangent", 5, 2, 3, 1),
    Sketcher.Constraint("Tangent", 7, 2, 8, 1),
    Sketcher.Constraint("Tangent", 8, 2, 9, 1),
    Sketcher.Constraint("Coincident", 9, 2, 7, 1),
    Sketcher.Constraint("Tangent", 10, 2, 11, 1),
    Sketcher.Constraint("Coincident", 11, 2, 12, 1),
    Sketcher.Constraint("Tangent", 12, 2, 10, 1),
    Sketcher.Constraint("Vertical", 0),
    Sketcher.Constraint("Horizontal", 2),
    Sketcher.Constraint("Vertical", 4),
    Sketcher.Constraint("Horizontal", 5),
    Sketcher.Constraint("Vertical", 7),
    Sketcher.Constraint("Horizontal", 9),
    Sketcher.Constraint("Vertical", 11),
    Sketcher.Constraint("Horizontal", 12),
    Sketcher.Constraint("Equal", 1, 3),
    Sketcher.Constraint("Equal", 3, 8),
    Sketcher.Constraint("Equal", 8, 10),
    Sketcher.Constraint("Equal", 6, 13),
    Sketcher.Constraint("Symmetric", 3, 3, 8, 3, -1),
    Sketcher.Constraint("Symmetric", 1, 3, 10, 3, -1),
    Sketcher.Constraint("Symmetric", 6, 3, 13, 3, -1),
    Sketcher.Constraint("Vertical", 1, 3, 3, 3),
    Sketcher.Constraint("Vertical", 3, 3, 6, 3),
    Sketcher.Constraint("Diameter", 6, Q("1 mm")),
    Sketcher.Constraint("Radius", 1, Q("1 mm")),
    Sketcher.Constraint("DistanceX", 1, 3, -1, 1, Q("2 mm")),
    Sketcher.Constraint("DistanceY", 1, 3, 3, 3, Q("0.5 mm")),
    Sketcher.Constraint("DistanceY", 1, 3, 6, 3, Q("0.25 mm")),
    Sketcher.Constraint("DistanceY", 1, 3, -1, 1, Q("9.498327 mm")),
])
sketch12.setExpression("Constraints[29]", "Params.sketch12_diameter")
sketch12.setExpression("Constraints[30]", "Params.sketch12_radius")
pocket6 = body.newObject("PartDesign::Pocket", "Pocket005")
pocket6.Profile = sketch12
pocket6.Type = "ThroughAll"
pocket6.Midplane = True
doc.recompute()

fillet = body.newObject("PartDesign::Fillet", "Fillet")
fillet.Base = (pocket6, edges_at(pocket6, [(0, 18, -12.25)]))
fillet.setExpression("Radius", "Params.fillet_radius")
doc.recompute()

fillet2 = body.newObject("PartDesign::Fillet", "Fillet001")
fillet2.Base = (fillet, edges_at(fillet, [(0, -1.7, 3.25)]))
fillet2.setExpression("Radius", "Params.fillet2_radius")

sketch13 = body.newObject("Sketcher::SketchObject", "Sketch012")
sketch13.AttachmentSupport = (doc.getObject("XZ_Plane"), [""])
sketch13.MapMode = "FlatFace"
sketch13.AttachmentOffset = App.Placement(V(0, 0, -18), App.Rotation())
sketch13.addGeometry([
    Part.Circle(V(3.951197, -6.667124, 0), V(0, 0, 1), 1),
    Part.Circle(V(7.749497, 0.088275, 0), V(0, 0, 1), 1),
    Part.Circle(V(3.7983, 6.755399, 0), V(0, 0, 1), 1),
    Part.Circle(V(-3.951197, 6.667124, 0), V(0, 0, 1), 1),
    Part.Circle(V(-7.749497, -0.088275, 0), V(0, 0, 1), 1),
    Part.Circle(V(-3.7983, -6.755399, 0), V(0, 0, 1), 1),
    Part.Circle(V(0, -9.5, 0), V(0, 0, 1), 0.75),
], False)
sketch13.addConstraint([
    Sketcher.Constraint("Equal", 0, 1),
    Sketcher.Constraint("Equal", 1, 2),
    Sketcher.Constraint("Equal", 2, 3),
    Sketcher.Constraint("Equal", 3, 4),
    Sketcher.Constraint("Equal", 4, 5),
    Sketcher.Constraint("Symmetric", 0, 3, 3, 3, -1, 1),
    Sketcher.Constraint("Symmetric", 1, 3, 4, 3, -1, 1),
    Sketcher.Constraint("Symmetric", 2, 3, 5, 3, -1, 1),
    Sketcher.Constraint("PointOnObject", 6, 3, -2),
    Sketcher.Constraint("Diameter", 0, Q("2 mm")),
    Sketcher.Constraint("Diameter", 6, Q("1.5 mm")),
    Sketcher.Constraint("DistanceY", 6, 3, -1, 1, Q("9.5 mm")),
    Sketcher.Constraint("DistanceX", -1, 1, 2, 3, Q("3.7983 mm")),
    Sketcher.Constraint("DistanceY", -1, 1, 2, 3, Q("6.755399 mm")),
    Sketcher.Constraint("DistanceX", 0, 3, 1, 3, Q("3.7983 mm")),
    Sketcher.Constraint("DistanceY", 0, 3, 1, 3, Q("6.755399 mm")),
    Sketcher.Constraint("DistanceY", 1, 3, 3, 3, Q("6.578849 mm")),
    Sketcher.Constraint("DistanceX", -1, 1, 0, 3, Q("3.951197 mm")),
])
sketch13.setExpression("Constraints[9]", "Params.sketch13_diameter")
sketch13.setExpression("Constraints[10]", "Params.sketch13_diameter2")
pocket7 = body.newObject("PartDesign::Pocket", "Pocket006")
pocket7.Profile = sketch13
pocket7.setExpression("Length", "Params.pocket7_length")
pocket7.Reversed = True

sketch14 = body.newObject("Sketcher::SketchObject", "Sketch013")
sketch14.AttachmentSupport = (doc.getObject("XZ_Plane"), [""])
sketch14.MapMode = "FlatFace"
sketch14.AttachmentOffset = App.Placement(V(0, 0, -18), App.Rotation())
sketch14.addGeometry([
    Part.Circle(V(7.602516, -4.331772, 0), V(0, 0, 1), 1),
    Part.Circle(V(-7.602516, 4.331772, 0), V(0, 0, 1), 1),
], False)
sketch14.addConstraint([
    Sketcher.Constraint("Equal", 0, 1),
    Sketcher.Constraint("Symmetric", 0, 3, 1, 3, -1, 1),
    Sketcher.Constraint("Diameter", 0, Q("2 mm")),
    Sketcher.Constraint("DistanceY", 0, 3, -1, 1, Q("4.331772 mm")),
    Sketcher.Constraint("DistanceX", -1, 1, 0, 3, Q("7.602516 mm")),
])
sketch14.setExpression("Constraints[2]", "Params.sketch14_diameter")
pocket8 = body.newObject("PartDesign::Pocket", "Pocket007")
pocket8.Profile = sketch14
pocket8.setExpression("Length", "Params.pocket8_length")
pocket8.Reversed = True
doc.recompute()

fillet3 = body.newObject("PartDesign::Fillet", "Fillet002")
fillet3.Base = (pocket8, edges_at(pocket8, [(7.603, 18, -5.332), (-7.603, 18, 3.332)]))
fillet3.setExpression("Radius", "Params.fillet3_radius")
doc.recompute()

fillet4 = body.newObject("PartDesign::Fillet", "Fillet003")
fillet4.Base = (fillet3, edges_at(fillet3, [(0, 41.5, 1)]))
fillet4.setExpression("Radius", "Params.fillet4_radius")

doc.recompute()
